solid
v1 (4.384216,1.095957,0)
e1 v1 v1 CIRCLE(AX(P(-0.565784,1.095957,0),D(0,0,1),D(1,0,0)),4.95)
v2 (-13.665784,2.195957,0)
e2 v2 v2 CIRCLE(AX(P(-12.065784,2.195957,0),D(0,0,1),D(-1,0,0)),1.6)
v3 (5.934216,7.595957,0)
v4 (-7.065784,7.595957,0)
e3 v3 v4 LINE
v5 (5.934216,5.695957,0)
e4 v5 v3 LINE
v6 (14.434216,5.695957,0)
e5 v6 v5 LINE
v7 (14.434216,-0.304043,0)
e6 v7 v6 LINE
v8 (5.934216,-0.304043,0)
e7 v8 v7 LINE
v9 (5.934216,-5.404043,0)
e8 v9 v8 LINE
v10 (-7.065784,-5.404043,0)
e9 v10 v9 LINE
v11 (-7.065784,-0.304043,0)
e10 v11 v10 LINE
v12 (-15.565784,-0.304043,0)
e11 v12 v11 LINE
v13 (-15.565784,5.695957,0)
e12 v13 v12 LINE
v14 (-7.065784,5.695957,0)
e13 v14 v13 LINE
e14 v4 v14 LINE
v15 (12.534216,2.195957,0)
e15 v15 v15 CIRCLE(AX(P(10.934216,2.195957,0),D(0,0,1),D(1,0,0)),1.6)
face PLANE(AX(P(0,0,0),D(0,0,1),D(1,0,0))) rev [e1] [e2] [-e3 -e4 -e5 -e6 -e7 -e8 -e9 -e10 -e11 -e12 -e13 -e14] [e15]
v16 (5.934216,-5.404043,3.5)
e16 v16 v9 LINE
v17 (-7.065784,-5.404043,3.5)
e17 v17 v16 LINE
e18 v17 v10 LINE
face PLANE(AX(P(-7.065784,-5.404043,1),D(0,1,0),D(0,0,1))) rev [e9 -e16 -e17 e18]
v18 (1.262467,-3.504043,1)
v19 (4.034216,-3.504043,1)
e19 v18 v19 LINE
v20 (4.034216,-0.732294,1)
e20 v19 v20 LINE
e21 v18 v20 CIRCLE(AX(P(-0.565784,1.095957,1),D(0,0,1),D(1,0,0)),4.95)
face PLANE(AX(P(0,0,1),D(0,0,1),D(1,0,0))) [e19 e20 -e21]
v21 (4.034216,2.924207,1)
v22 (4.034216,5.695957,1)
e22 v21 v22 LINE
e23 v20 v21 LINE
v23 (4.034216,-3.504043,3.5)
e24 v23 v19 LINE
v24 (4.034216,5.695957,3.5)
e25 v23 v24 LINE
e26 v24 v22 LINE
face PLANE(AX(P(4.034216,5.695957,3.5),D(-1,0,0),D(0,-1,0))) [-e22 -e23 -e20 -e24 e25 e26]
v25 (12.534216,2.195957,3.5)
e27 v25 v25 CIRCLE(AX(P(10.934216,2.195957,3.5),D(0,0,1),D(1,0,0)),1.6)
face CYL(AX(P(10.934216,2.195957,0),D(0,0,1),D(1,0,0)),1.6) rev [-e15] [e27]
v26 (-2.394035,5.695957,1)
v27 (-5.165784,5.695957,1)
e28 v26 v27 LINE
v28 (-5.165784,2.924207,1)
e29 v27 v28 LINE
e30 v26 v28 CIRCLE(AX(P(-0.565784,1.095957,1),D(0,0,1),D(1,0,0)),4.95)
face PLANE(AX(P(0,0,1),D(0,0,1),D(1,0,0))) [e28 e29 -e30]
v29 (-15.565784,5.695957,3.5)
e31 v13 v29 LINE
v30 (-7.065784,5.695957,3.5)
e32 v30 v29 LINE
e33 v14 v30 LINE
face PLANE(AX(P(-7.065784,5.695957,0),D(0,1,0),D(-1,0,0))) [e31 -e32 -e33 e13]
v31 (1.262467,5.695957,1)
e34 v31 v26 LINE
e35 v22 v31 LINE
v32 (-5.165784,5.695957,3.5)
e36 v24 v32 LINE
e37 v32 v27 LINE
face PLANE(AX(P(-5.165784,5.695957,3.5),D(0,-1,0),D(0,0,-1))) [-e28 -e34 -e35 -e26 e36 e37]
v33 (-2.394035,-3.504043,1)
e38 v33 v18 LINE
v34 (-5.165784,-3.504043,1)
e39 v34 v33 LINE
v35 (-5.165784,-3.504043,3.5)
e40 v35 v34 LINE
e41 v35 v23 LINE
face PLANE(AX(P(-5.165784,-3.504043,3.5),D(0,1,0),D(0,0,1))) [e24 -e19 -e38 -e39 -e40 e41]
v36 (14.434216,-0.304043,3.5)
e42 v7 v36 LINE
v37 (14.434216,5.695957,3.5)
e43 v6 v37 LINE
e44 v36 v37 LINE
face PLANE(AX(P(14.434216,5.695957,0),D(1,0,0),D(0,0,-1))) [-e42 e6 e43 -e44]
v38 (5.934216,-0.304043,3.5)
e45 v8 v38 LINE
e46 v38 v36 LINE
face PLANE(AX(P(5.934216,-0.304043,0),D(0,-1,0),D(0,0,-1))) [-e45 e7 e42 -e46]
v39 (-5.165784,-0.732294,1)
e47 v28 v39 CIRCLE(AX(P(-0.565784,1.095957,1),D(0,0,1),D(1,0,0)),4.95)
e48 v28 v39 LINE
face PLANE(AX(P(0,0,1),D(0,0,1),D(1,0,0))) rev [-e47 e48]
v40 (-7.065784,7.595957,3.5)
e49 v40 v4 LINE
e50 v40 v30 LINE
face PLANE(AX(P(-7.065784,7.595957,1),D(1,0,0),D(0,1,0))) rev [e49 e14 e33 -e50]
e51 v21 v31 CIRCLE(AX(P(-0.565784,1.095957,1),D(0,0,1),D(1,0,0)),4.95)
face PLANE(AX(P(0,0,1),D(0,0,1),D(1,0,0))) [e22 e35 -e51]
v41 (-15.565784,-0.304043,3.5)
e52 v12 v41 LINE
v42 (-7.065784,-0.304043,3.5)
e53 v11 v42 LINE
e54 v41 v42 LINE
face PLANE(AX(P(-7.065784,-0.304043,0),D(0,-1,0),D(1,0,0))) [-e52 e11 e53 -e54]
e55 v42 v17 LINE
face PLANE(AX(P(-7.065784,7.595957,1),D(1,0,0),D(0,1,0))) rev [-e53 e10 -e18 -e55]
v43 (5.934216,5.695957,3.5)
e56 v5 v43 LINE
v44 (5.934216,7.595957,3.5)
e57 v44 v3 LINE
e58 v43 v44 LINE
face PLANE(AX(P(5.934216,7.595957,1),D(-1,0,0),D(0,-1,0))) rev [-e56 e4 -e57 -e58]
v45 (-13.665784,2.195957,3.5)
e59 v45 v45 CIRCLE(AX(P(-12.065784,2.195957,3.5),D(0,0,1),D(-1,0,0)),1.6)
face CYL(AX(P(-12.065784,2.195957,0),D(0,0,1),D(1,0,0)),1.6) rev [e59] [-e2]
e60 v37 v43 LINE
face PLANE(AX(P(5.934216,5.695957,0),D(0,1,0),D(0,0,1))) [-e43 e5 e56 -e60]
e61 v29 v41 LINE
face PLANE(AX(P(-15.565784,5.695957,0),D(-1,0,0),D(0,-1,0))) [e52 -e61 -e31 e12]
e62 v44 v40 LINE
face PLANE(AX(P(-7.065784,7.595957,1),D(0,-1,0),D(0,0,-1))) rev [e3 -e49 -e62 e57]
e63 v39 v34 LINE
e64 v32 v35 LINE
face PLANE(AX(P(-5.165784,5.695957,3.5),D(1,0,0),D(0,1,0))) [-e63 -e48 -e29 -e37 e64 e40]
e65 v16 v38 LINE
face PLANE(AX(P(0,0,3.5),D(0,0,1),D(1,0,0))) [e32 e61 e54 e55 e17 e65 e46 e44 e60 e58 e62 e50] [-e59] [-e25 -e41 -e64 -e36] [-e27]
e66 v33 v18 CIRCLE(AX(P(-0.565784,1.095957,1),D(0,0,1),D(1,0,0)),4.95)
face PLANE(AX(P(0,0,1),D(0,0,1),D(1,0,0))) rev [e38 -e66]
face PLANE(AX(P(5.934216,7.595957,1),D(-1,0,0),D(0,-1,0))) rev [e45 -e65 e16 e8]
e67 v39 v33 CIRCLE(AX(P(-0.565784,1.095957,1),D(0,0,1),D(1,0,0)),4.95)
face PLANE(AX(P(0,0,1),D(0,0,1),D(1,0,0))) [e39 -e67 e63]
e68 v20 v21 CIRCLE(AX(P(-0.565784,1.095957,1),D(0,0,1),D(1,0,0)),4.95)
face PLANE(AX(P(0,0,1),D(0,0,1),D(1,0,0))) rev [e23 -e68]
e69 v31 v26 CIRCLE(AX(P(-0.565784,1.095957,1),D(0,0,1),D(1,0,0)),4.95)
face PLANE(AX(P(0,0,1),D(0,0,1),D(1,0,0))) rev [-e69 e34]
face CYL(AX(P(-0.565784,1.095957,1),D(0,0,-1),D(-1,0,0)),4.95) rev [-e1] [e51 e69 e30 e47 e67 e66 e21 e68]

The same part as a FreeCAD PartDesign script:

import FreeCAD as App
import Part
import Sketcher
Q = App.Units.Quantity


def add_polygon(sketch, points):
    """Adds a closed chain of lines whose ends are joined by coincident constraints."""
    first, n = sketch.GeometryCount, len(points)
    for a, b in zip(points, points[1:] + points[:1]):
        sketch.addGeometry(Part.LineSegment(App.Vector(*a, 0), App.Vector(*b, 0)), False)
    for i in range(n):
        sketch.addConstraint(Sketcher.Constraint("Coincident", first + i, 2, first + (i + 1) % n, 1))

doc = App.newDocument("Part")
body = doc.addObject("PartDesign::Body", "Body")

# Sketch on XY plane
sketch1 = body.newObject("Sketcher::SketchObject", "Sketch")
sketch1.AttachmentSupport = (doc.getObject("XY_Plane"), [""])
sketch1.MapMode = "FlatFace"
add_polygon(sketch1, [(-7.1, 7.6), (-7.1, -5.4), (5.9, -5.4), (5.9, 7.6)])  # lines 0-3
sketch1.addGeometry(Part.Circle(App.Vector(-0.6, 1.1, 0), App.Vector(0, 0, 1), 5), False)  # 4
sketch1.addConstraint([
    Sketcher.Constraint("Vertical", 0),
    Sketcher.Constraint("Horizontal", 1),
    Sketcher.Constraint("Vertical", 2),
    Sketcher.Constraint("Horizontal", 3),
    Sketcher.Constraint("Equal", 3, 0),
    Sketcher.Constraint("Diameter", 4, Q("9.9 mm")),
    Sketcher.Constraint("DistanceX", 1, 1, 1, 2, Q("13 mm")),
    Sketcher.Constraint("DistanceX", 0, 2, 4, 3, Q("6.5 mm")),
    Sketcher.Constraint("DistanceY", 0, 2, 4, 3, Q("6.5 mm")),
    Sketcher.Constraint("DistanceX", 4, 3, -1, 1, Q("0.565784 mm")),
    Sketcher.Constraint("DistanceY", -1, 1, 4, 3, Q("1.095957 mm")),
])
pad1 = body.newObject("PartDesign::Pad", "Pad")
pad1.Profile = sketch1
pad1.Length = 1

# Sketch on XY plane
sketch2 = body.newObject("Sketcher::SketchObject", "Sketch001")
sketch2.AttachmentSupport = (doc.getObject("XY_Plane"), [""])
sketch2.MapMode = "FlatFace"
sketch2.AttachmentOffset = App.Placement(App.Vector(0, 0, 1), App.Rotation())
add_polygon(sketch2, [(-7, 8), (-7, -5), (6, -5), (6, 8)])  # lines 0-3
add_polygon(sketch2, [(4, -4), (-5, -4), (-5, 6), (4, 6)])  # lines 4-7
sketch2.addConstraint([
    Sketcher.Constraint("Vertical", 0),
    Sketcher.Constraint("Horizontal", 1),
    Sketcher.Constraint("Vertical", 2),
    Sketcher.Constraint("Horizontal", 3),
    Sketcher.Constraint("Horizontal", 4),
    Sketcher.Constraint("Vertical", 5),
    Sketcher.Constraint("Horizontal", 6),
    Sketcher.Constraint("Vertical", 7),
    Sketcher.Constraint("Equal", 3, 0),
    Sketcher.Constraint("Equal", 6, 5),
    Sketcher.Constraint("DistanceX", 1, 1, 1, 2, Q("13 mm")),
    Sketcher.Constraint("DistanceX", 4, 2, 4, 1, Q("9.2 mm")),
    Sketcher.Constraint("DistanceX", 0, 2, 4, 2, Q("1.9 mm")),
    Sketcher.Constraint("DistanceY", 0, 2, 4, 2, Q("1.9 mm")),
    Sketcher.Constraint("DistanceX", 0, 2, -1, 1, Q("7.065784 mm")),
    Sketcher.Constraint("DistanceY", 0, 2, -1, 1, Q("5.404043 mm")),
])
pad2 = body.newObject("PartDesign::Pad", "Pad001")
pad2.Profile = sketch2
pad2.Length = 2.5

# Sketch on XY plane
sketch3 = body.newObject("Sketcher::SketchObject", "Sketch002")
sketch3.AttachmentSupport = (doc.getObject("XY_Plane"), [""])
sketch3.MapMode = "FlatFace"
sketch3.AttachmentOffset = App.Placement(App.Vector(0, 0, 3.5), App.Rotation())
add_polygon(sketch3, [(5.9, 5.7), (5.9, -0.3), (14.4, -0.3), (14.4, 5.7)])  # lines 0-3
sketch3.addGeometry(Part.Circle(App.Vector(10.9, 2.2, 0), App.Vector(0, 0, 1), 1.6), False)  # 4
add_polygon(sketch3, [(-15.6, 5.7), (-15.6, -0.3), (-7.1, -0.3), (-7.1, 5.7)])  # lines 5-8
sketch3.addGeometry(Part.Circle(App.Vector(-12.1, 2.2, 0), App.Vector(0, 0, 1), 1.6), False)  # 9
sketch3.addConstraint([
    Sketcher.Constraint("Vertical", 0),
    Sketcher.Constraint("Horizontal", 1),
    Sketcher.Constraint("Vertical", 2),
    Sketcher.Constraint("Horizontal", 3),
    Sketcher.Constraint("Vertical", 5),
    Sketcher.Constraint("Horizontal", 6),
    Sketcher.Constraint("Vertical", 7),
    Sketcher.Constraint("Horizontal", 8),
    Sketcher.Constraint("Equal", 4, 9),
    Sketcher.Constraint("Horizontal", 4, 3, 9, 3),
    Sketcher.Constraint("Horizontal", 1, 2, 5, 2),
    Sketcher.Constraint("Horizontal", 3, 2, 7, 2),
    Sketcher.Constraint("Equal", 3, 6),
    Sketcher.Constraint("Diameter", 4, Q("3.2 mm")),
    Sketcher.Constraint("DistanceY", 0, 2, 0, 1, Q("6 mm")),
    Sketcher.Constraint("DistanceX", 1, 1, 1, 2, Q("8.5 mm")),
    Sketcher.Constraint("DistanceX", 9, 3, 4, 3, Q("23 mm")),
    Sketcher.Constraint("DistanceX", 0, 2, 4, 3, Q("5 mm")),
    Sketcher.Constraint("DistanceX", 5, 2, 1, 2, Q("30 mm")),
    Sketcher.Constraint("DistanceY", 0, 2, 4, 3, Q("2.5 mm")),
    Sketcher.Constraint("DistanceX", -1, 1, 4, 3, Q("10.934216 mm")),
    Sketcher.Constraint("DistanceY", -1, 1, 4, 3, Q("2.195957 mm")),
])
pad3 = body.newObject("PartDesign::Pad", "Pad002")
pad3.Profile = sketch3
pad3.Length = 3.5
pad3.Reversed = True

doc.recompute()
